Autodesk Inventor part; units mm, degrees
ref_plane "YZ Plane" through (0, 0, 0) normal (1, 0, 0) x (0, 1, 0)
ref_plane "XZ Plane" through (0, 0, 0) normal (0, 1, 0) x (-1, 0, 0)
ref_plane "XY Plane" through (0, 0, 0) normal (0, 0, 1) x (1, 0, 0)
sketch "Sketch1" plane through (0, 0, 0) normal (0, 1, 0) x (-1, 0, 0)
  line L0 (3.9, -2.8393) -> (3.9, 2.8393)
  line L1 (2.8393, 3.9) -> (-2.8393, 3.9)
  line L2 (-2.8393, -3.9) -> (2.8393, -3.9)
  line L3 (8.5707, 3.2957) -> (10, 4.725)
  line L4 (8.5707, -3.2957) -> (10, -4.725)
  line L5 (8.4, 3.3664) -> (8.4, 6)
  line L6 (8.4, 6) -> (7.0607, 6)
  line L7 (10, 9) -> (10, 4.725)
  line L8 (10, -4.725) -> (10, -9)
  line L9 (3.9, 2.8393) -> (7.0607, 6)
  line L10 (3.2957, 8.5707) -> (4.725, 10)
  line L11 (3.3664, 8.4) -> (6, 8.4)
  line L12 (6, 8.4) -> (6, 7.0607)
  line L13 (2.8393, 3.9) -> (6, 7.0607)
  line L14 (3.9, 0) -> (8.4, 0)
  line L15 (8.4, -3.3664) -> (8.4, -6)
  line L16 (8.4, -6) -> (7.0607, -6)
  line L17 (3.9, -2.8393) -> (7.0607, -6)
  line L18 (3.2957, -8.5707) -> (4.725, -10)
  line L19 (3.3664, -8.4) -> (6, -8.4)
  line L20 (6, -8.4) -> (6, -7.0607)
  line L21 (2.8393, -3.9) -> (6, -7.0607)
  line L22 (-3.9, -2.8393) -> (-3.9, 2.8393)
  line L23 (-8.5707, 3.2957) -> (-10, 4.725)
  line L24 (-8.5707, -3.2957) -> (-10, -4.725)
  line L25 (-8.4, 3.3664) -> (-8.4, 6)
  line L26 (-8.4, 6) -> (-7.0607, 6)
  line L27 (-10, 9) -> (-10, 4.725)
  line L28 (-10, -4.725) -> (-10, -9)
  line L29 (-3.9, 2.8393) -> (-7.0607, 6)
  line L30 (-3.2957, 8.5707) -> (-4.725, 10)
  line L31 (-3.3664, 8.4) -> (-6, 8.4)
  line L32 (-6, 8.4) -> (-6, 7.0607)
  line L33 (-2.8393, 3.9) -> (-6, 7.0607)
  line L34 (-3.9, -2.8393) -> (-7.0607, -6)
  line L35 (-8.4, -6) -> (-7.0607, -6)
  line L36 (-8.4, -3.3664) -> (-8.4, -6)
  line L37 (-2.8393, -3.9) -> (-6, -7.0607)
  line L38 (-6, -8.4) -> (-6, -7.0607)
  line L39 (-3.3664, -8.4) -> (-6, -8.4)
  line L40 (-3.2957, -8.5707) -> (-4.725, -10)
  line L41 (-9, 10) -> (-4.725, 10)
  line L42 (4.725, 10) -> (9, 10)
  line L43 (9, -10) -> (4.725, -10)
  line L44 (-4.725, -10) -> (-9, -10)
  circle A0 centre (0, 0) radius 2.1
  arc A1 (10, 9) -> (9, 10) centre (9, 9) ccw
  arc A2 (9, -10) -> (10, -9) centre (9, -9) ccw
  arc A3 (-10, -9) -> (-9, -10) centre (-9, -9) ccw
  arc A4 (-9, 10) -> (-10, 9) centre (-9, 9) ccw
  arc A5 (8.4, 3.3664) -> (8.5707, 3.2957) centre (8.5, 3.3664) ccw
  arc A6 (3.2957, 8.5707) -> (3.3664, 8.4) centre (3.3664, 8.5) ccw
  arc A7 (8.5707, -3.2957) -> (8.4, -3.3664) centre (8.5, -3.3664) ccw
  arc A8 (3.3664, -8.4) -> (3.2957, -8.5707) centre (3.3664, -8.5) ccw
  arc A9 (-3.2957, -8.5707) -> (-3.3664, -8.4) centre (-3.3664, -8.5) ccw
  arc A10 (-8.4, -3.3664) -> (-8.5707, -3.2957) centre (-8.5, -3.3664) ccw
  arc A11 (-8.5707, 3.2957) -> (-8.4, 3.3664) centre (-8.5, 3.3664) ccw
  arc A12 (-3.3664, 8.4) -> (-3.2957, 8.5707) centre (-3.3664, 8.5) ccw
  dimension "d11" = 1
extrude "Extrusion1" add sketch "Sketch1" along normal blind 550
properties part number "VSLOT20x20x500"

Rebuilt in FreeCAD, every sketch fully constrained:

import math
import FreeCAD as App
import Part
import Sketcher
from FreeCAD import Vector

doc = App.newDocument("Part")
body = doc.addObject("PartDesign::Body", "Body")

# Sketch on XZ plane
sketch1 = body.newObject("Sketcher::SketchObject", "Sketch")
sketch1.AttachmentSupport = (doc.getObject("XZ_Plane"), [""])
sketch1.MapMode = "FlatFace"
sketch1.addGeometry([
    Part.LineSegment(Vector(-7.0607, -6, 0), Vector(-3.9, -2.8393, 0)),  # 0
    Part.LineSegment(Vector(-3.9, -2.8393, 0), Vector(-3.9, 2.8393, 0)),  # 1
    Part.LineSegment(Vector(-3.9, 2.8393, 0), Vector(-7.0607, 6, 0)),  # 2
    Part.LineSegment(Vector(-7.0607, 6, 0), Vector(-8.4, 6, 0)),  # 3
    Part.LineSegment(Vector(-8.4, 6, 0), Vector(-8.4, 3.3664, 0)),  # 4
    Part.ArcOfCircle(Part.Circle(Vector(-8.5, 3.3664, 0), Vector(0, 0, 1), 0.1), math.radians(-135), math.radians(0)),  # 5
    Part.LineSegment(Vector(-8.5707, 3.2957, 0), Vector(-10, 4.725, 0)),  # 6
    Part.LineSegment(Vector(-10, 4.725, 0), Vector(-10, 9, 0)),  # 7
    Part.ArcOfCircle(Part.Circle(Vector(-9, 9, 0), Vector(0, 0, 1), 1), math.radians(90), math.radians(180)),  # 8
    Part.LineSegment(Vector(-9, 10, 0), Vector(-4.725, 10, 0)),  # 9
    Part.LineSegment(Vector(-4.725, 10, 0), Vector(-3.2957, 8.5707, 0)),  # 10
    Part.ArcOfCircle(Part.Circle(Vector(-3.3664, 8.5, 0), Vector(0, 0, 1), 0.099985), math.radians(-90), math.radians(45)),  # 11
    Part.LineSegment(Vector(-3.3664, 8.4, 0), Vector(-6, 8.4, 0)),  # 12
    Part.LineSegment(Vector(-6, 8.4, 0), Vector(-6, 7.0607, 0)),  # 13
    Part.LineSegment(Vector(-6, 7.0607, 0), Vector(-2.8393, 3.9, 0)),  # 14
    Part.LineSegment(Vector(-2.8393, 3.9, 0), Vector(2.8393, 3.9, 0)),  # 15
    Part.LineSegment(Vector(2.8393, 3.9, 0), Vector(6, 7.0607, 0)),  # 16
    Part.LineSegment(Vector(6, 7.0607, 0), Vector(6, 8.4, 0)),  # 17
    Part.LineSegment(Vector(6, 8.4, 0), Vector(3.3664, 8.4, 0)),  # 18
    Part.ArcOfCircle(Part.Circle(Vector(3.3664, 8.5, 0), Vector(0, 0, 1), 0.1), math.radians(135), math.radians(270)),  # 19
    Part.LineSegment(Vector(3.2957, 8.5707, 0), Vector(4.725, 10, 0)),  # 20
    Part.LineSegment(Vector(4.725, 10, 0), Vector(9, 10, 0)),  # 21
    Part.ArcOfCircle(Part.Circle(Vector(9, 9, 0), Vector(0, 0, 1), 1), math.radians(0), math.radians(90)),  # 22
    Part.LineSegment(Vector(10, 9, 0), Vector(10, 4.725, 0)),  # 23
    Part.LineSegment(Vector(10, 4.725, 0), Vector(8.5707, 3.2957, 0)),  # 24
    Part.ArcOfCircle(Part.Circle(Vector(8.5, 3.3664, 0), Vector(0, 0, 1), 0.099985), math.radians(180), math.radians(315)),  # 25
    Part.LineSegment(Vector(8.4, 3.3664, 0), Vector(8.4, 6, 0)),  # 26
    Part.LineSegment(Vector(8.4, 6, 0), Vector(7.0607, 6, 0)),  # 27
    Part.LineSegment(Vector(7.0607, 6, 0), Vector(3.9, 2.8393, 0)),  # 28
    Part.LineSegment(Vector(3.9, 2.8393, 0), Vector(3.9, -2.8393, 0)),  # 29
    Part.LineSegment(Vector(3.9, -2.8393, 0), Vector(7.0607, -6, 0)),  # 30
    Part.LineSegment(Vector(7.0607, -6, 0), Vector(8.4, -6, 0)),  # 31
    Part.LineSegment(Vector(8.4, -6, 0), Vector(8.4, -3.3664, 0)),  # 32
    Part.ArcOfCircle(Part.Circle(Vector(8.5, -3.3664, 0), Vector(0, 0, 1), 0.1), math.radians(45), math.radians(180)),  # 33
    Part.LineSegment(Vector(8.5707, -3.2957, 0), Vector(10, -4.725, 0)),  # 34
    Part.LineSegment(Vector(10, -4.725, 0), Vector(10, -9, 0)),  # 35
    Part.ArcOfCircle(Part.Circle(Vector(9, -9, 0), Vector(0, 0, 1), 1), math.radians(-90), math.radians(0)),  # 36
    Part.LineSegment(Vector(9, -10, 0), Vector(4.725, -10, 0)),  # 37
    Part.LineSegment(Vector(4.725, -10, 0), Vector(3.2957, -8.5707, 0)),  # 38
    Part.ArcOfCircle(Part.Circle(Vector(3.3664, -8.5, 0), Vector(0, 0, 1), 0.099985), math.radians(90), math.radians(225)),  # 39
    Part.LineSegment(Vector(3.3664, -8.4, 0), Vector(6, -8.4, 0)),  # 40
    Part.LineSegment(Vector(6, -8.4, 0), Vector(6, -7.0607, 0)),  # 41
    Part.LineSegment(Vector(6, -7.0607, 0), Vector(2.8393, -3.9, 0)),  # 42
    Part.LineSegment(Vector(2.8393, -3.9, 0), Vector(-2.8393, -3.9, 0)),  # 43
    Part.LineSegment(Vector(-2.8393, -3.9, 0), Vector(-6, -7.0607, 0)),  # 44
    Part.LineSegment(Vector(-6, -7.0607, 0), Vector(-6, -8.4, 0)),  # 45
    Part.LineSegment(Vector(-6, -8.4, 0), Vector(-3.3664, -8.4, 0)),  # 46
    Part.ArcOfCircle(Part.Circle(Vector(-3.3664, -8.5, 0), Vector(0, 0, 1), 0.1), math.radians(-45), math.radians(90)),  # 47
    Part.LineSegment(Vector(-3.2957, -8.5707, 0), Vector(-4.725, -10, 0)),  # 48
    Part.LineSegment(Vector(-4.725, -10, 0), Vector(-9, -10, 0)),  # 49
    Part.ArcOfCircle(Part.Circle(Vector(-9, -9, 0), Vector(0, 0, 1), 1), math.radians(180), math.radians(270)),  # 50
    Part.LineSegment(Vector(-10, -9, 0), Vector(-10, -4.725, 0)),  # 51
    Part.LineSegment(Vector(-10, -4.725, 0), Vector(-8.5707, -3.2957, 0)),  # 52
    Part.ArcOfCircle(Part.Circle(Vector(-8.5, -3.3664, 0), Vector(0, 0, 1), 0.099985), math.radians(0), math.radians(135)),  # 53
    Part.LineSegment(Vector(-8.4, -3.3664, 0), Vector(-8.4, -6, 0)),  # 54
    Part.LineSegment(Vector(-8.4, -6, 0), Vector(-7.0607, -6, 0)),  # 55
    Part.Circle(Vector(0, 0, 0), Vector(0, 0, 1), 2.1),  # 56
], False)
sketch1.addConstraint([
    Sketcher.Constraint("Coincident", 0, 2, 1, 1),
    Sketcher.Constraint("Coincident", 1, 2, 2, 1),
    Sketcher.Constraint("Coincident", 2, 2, 3, 1),
    Sketcher.Constraint("Coincident", 3, 2, 4, 1),
    Sketcher.Constraint("Tangent", 4, 2, 5, 2),
    Sketcher.Constraint("Tangent", 5, 1, 6, 1),
    Sketcher.Constraint("Coincident", 6, 2, 7, 1),
    Sketcher.Constraint("Tangent", 7, 2, 8, 2),
    Sketcher.Constraint("Tangent", 8, 1, 9, 1),
    Sketcher.Constraint("Coincident", 9, 2, 10, 1),
    Sketcher.Constraint("Tangent", 10, 2, 11, 2),
    Sketcher.Constraint("Tangent", 11, 1, 12, 1),
    Sketcher.Constraint("Coincident", 12, 2, 13, 1),
    Sketcher.Constraint("Coincident", 13, 2, 14, 1),
    Sketcher.Constraint("Coincident", 14, 2, 15, 1),
    Sketcher.Constraint("Coincident", 15, 2, 16, 1),
    Sketcher.Constraint("Coincident", 16, 2, 17, 1),
    Sketcher.Constraint("Coincident", 17, 2, 18, 1),
    Sketcher.Constraint("Tangent", 18, 2, 19, 2),
    Sketcher.Constraint("Tangent", 19, 1, 20, 1),
    Sketcher.Constraint("Coincident", 20, 2, 21, 1),
    Sketcher.Constraint("Tangent", 21, 2, 22, 2),
    Sketcher.Constraint("Tangent", 22, 1, 23, 1),
    Sketcher.Constraint("Coincident", 23, 2, 24, 1),
    Sketcher.Constraint("Tangent", 24, 2, 25, 2),
    Sketcher.Constraint("Tangent", 25, 1, 26, 1),
    Sketcher.Constraint("Coincident", 26, 2, 27, 1),
    Sketcher.Constraint("Coincident", 27, 2, 28, 1),
    Sketcher.Constraint("Coincident", 28, 2, 29, 1),
    Sketcher.Constraint("Coincident", 29, 2, 30, 1),
    Sketcher.Constraint("Coincident", 30, 2, 31, 1),
    Sketcher.Constraint("Coincident", 31, 2, 32, 1),
    Sketcher.Constraint("Tangent", 32, 2, 33, 2),
    Sketcher.Constraint("Tangent", 33, 1, 34, 1),
    Sketcher.Constraint("Coincident", 34, 2, 35, 1),
    Sketcher.Constraint("Tangent", 35, 2, 36, 2),
    Sketcher.Constraint("Tangent", 36, 1, 37, 1),
    Sketcher.Constraint("Coincident", 37, 2, 38, 1),
    Sketcher.Constraint("Tangent", 38, 2, 39, 2),
    Sketcher.Constraint("Tangent", 39, 1, 40, 1),
    Sketcher.Constraint("Coincident", 40, 2, 41, 1),
    Sketcher.Constraint("Coincident", 41, 2, 42, 1),
    Sketcher.Constraint("Coincident", 42, 2, 43, 1),
    Sketcher.Constraint("Coincident", 43, 2, 44, 1),
    Sketcher.Constraint("Coincident", 44, 2, 45, 1),
    Sketcher.Constraint("Coincident", 45, 2, 46, 1),
    Sketcher.Constraint("Tangent", 46, 2, 47, 2),
    Sketcher.Constraint("Tangent", 47, 1, 48, 1),
    Sketcher.Constraint("Coincident", 48, 2, 49, 1),
    Sketcher.Constraint("Tangent", 49, 2, 50, 2),
    Sketcher.Constraint("Tangent", 50, 1, 51, 1),
    Sketcher.Constraint("Coincident", 51, 2, 52, 1),
    Sketcher.Constraint("Tangent", 52, 2, 53, 2),
    Sketcher.Constraint("Tangent", 53, 1, 54, 1),
    Sketcher.Constraint("Coincident", 54, 2, 55, 1),
    Sketcher.Constraint("Coincident", 55, 2, 0, 1),
    Sketcher.Constraint("Vertical", 1),
    Sketcher.Constraint("Horizontal", 3),
    Sketcher.Constraint("Vertical", 4),
    Sketcher.Constraint("Vertical", 7),
    Sketcher.Constraint("Horizontal", 9),
    Sketcher.Constraint("Horizontal", 12),
    Sketcher.Constraint("Vertical", 13),
    Sketcher.Constraint("Horizontal", 15),
    Sketcher.Constraint("Vertical", 17),
    Sketcher.Constraint("Horizontal", 18),
    Sketcher.Constraint("Horizontal", 21),
    Sketcher.Constraint("Vertical", 23),
    Sketcher.Constraint("Vertical", 26),
    Sketcher.Constraint("Horizontal", 27),
    Sketcher.Constraint("Vertical", 29),
    Sketcher.Constraint("Horizontal", 31),
    Sketcher.Constraint("Vertical", 32),
    Sketcher.Constraint("Vertical", 35),
    Sketcher.Constraint("Horizontal", 37),
    Sketcher.Constraint("Horizontal", 40),
    Sketcher.Constraint("Vertical", 41),
    Sketcher.Constraint("Horizontal", 43),
    Sketcher.Constraint("Vertical", 45),
    Sketcher.Constraint("Horizontal", 46),
    Sketcher.Constraint("Horizontal", 49),
    Sketcher.Constraint("Vertical", 51),
    Sketcher.Constraint("Vertical", 54),
    Sketcher.Constraint("Horizontal", 55),
    Sketcher.Constraint("Coincident", 56, 3, -1, 1),
    Sketcher.Constraint("Equal", 5, 11),
    Sketcher.Constraint("Equal", 11, 19),
    Sketcher.Constraint("Equal", 8, 22),
    Sketcher.Constraint("Equal", 19, 25),
    Sketcher.Constraint("Equal", 25, 33),
    Sketcher.Constraint("Equal", 22, 36),
    Sketcher.Constraint("Equal", 33, 39),
    Sketcher.Constraint("Equal", 39, 47),
    Sketcher.Constraint("Equal", 36, 50),
    Sketcher.Constraint("Equal", 47, 53),
    Sketcher.Constraint("Symmetric", 5, 3, 33, 3, -1, 1),
    Sketcher.Constraint("Symmetric", 8, 3, 36, 3, -1, 1),
    Sketcher.Constraint("Symmetric", 11, 3, 39, 3, -1, 1),
    Sketcher.Constraint("Symmetric", 19, 3, 47, 3, -1, 1),
    Sketcher.Constraint("Symmetric", 22, 3, 50, 3, -1, 1),
    Sketcher.Constraint("Symmetric", 25, 3, 53, 3, -1, 1),
    Sketcher.Constraint("Symmetric", 0, 2, 28, 2, -1, 1),
    Sketcher.Constraint("Symmetric", 2, 2, 30, 2, -1, 1),
    Sketcher.Constraint("Symmetric", 13, 2, 41, 2, -1, 1),
    Sketcher.Constraint("Symmetric", 14, 2, 42, 2, -1, 1),
    Sketcher.Constraint("Symmetric", 16, 2, 44, 2, -1, 1),
    Sketcher.Constraint("Symmetric", 27, 2, 55, 2, -1, 1),
    Sketcher.Constraint("Symmetric", 11, 3, 19, 3, -2),
    Sketcher.Constraint("Symmetric", 8, 3, 22, 3, -2),
    Sketcher.Constraint("Symmetric", 5, 3, 25, 3, -2),
    Sketcher.Constraint("Symmetric", 13, 2, 16, 2, -2),
    Sketcher.Constraint("Symmetric", 2, 2, 27, 2, -2),
    Sketcher.Constraint("Perpendicular", 0, 2),
    Sketcher.Constraint("Parallel", 2, 6),
    Sketcher.Constraint("Parallel", 6, 10),
    Sketcher.Constraint("Parallel", 10, 14),
    Sketcher.Constraint("Perpendicular", 14, 16),
    Sketcher.Constraint("Parallel", 16, 20),
    Sketcher.Constraint("Parallel", 20, 24),
    Sketcher.Constraint("Perpendicular", 28, 30),
    Sketcher.Constraint("Parallel", 30, 34),
    Sketcher.Constraint("Parallel", 34, 38),
    Sketcher.Constraint("Perpendicular", 42, 44),
    Sketcher.Constraint("Parallel", 44, 48),
    Sketcher.Constraint("Parallel", 48, 52),
    Sketcher.Constraint("Horizontal", 10, 2, 19, 1),
    Sketcher.Constraint("Equal", 43, 1),
    Sketcher.Constraint("Equal", 46, 4),
    Sketcher.Constraint("Equal", 49, 7),
    Sketcher.Constraint("Equal", 55, 13),
    Sketcher.Constraint("Equal", 6, 10),
    Sketcher.Constraint("Equal", 2, 14),
    Sketcher.Constraint("Radius", 8, 1.0),
    Sketcher.Constraint("Diameter", 56, 4.2),
    Sketcher.Constraint("Radius", 5, 0.1),
    Sketcher.Constraint("DistanceX", 8, 3, -1, 1, 9.0),
    Sketcher.Constraint("DistanceY", -1, 1, 2, 2, 6.0),
    Sketcher.Constraint("DistanceX", 5, 3, -1, 1, 8.5),
    Sketcher.Constraint("DistanceX", 0, 2, -1, 1, 3.9),
    Sketcher.Constraint("Distance", 0, 4.47),
    Sketcher.Constraint("DistanceX", 9, 1, 9, 2, 4.275),
])
pad1 = body.newObject("PartDesign::Pad", "Pad")
pad1.Profile = sketch1
pad1.Length = 550
pad1.Reversed = True

doc.recompute()
